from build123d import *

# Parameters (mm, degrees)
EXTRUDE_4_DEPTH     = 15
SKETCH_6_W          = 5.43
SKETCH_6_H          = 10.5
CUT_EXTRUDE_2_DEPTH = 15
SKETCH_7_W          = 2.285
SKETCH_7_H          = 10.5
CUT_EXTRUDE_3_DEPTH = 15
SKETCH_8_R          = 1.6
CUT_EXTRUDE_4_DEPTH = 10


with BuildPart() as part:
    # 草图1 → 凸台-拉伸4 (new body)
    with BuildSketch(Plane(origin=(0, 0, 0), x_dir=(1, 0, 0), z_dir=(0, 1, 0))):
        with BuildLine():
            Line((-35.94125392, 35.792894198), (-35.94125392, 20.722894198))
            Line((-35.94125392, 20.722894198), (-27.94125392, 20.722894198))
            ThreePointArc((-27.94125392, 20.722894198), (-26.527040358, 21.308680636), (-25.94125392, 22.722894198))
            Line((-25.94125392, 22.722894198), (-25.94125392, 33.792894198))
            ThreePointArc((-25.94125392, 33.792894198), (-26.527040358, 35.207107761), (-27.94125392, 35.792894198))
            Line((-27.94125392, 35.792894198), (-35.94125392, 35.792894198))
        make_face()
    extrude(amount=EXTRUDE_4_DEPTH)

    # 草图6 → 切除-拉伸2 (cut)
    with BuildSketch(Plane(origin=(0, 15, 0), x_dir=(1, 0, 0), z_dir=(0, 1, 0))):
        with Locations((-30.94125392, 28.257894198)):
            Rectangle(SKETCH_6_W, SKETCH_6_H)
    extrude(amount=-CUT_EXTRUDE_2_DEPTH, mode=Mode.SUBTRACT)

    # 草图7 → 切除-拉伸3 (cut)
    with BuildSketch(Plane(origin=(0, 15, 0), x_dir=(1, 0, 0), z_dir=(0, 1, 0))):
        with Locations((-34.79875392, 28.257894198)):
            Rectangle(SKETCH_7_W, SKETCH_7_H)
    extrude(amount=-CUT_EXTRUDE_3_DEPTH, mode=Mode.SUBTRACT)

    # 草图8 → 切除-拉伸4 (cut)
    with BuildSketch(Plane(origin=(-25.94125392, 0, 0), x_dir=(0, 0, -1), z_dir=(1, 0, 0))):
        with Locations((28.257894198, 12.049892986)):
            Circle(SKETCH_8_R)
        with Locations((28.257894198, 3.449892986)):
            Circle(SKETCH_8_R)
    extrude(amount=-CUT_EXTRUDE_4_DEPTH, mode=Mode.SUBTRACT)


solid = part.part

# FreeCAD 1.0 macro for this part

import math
import FreeCAD as App
import Part
import Sketcher
Q = App.Units.Quantity

doc = App.newDocument("Part")
body = doc.addObject("PartDesign::Body", "Body")

sketch1 = doc.addObject("Sketcher::SketchObject", "Sketch")
body.addObject(sketch1)
sketch1.AttachmentSupport = (doc.XZ_Plane, [""])
sketch1.MapMode = "FlatFace"
sketch1.addGeometry(Part.LineSegment(App.Vector(-35.9, -35.8, 0), App.Vector(-35.9, -20.7, 0)), False)
sketch1.addGeometry(Part.LineSegment(App.Vector(-35.9, -20.7, 0), App.Vector(-27.9, -20.7, 0)), False)
sketch1.addGeometry(Part.ArcOfCircle(Part.Circle(App.Vector(-27.9, -22.7, 0), App.Vector(0, 0, 1), 2), math.radians(0), math.radians(90)), False)
sketch1.addGeometry(Part.LineSegment(App.Vector(-25.9, -22.7, 0), App.Vector(-25.9, -33.8, 0)), False)
sketch1.addGeometry(Part.ArcOfCircle(Part.Circle(App.Vector(-27.9, -33.8, 0), App.Vector(0, 0, 1), 2), math.radians(-90), math.radians(0)), False)
sketch1.addGeometry(Part.LineSegment(App.Vector(-27.9, -35.8, 0), App.Vector(-35.9, -35.8, 0)), False)
sketch1.addConstraint(Sketcher.Constraint("Coincident", 0, 2, 1, 1))
sketch1.addConstraint(Sketcher.Constraint("Tangent", 1, 2, 2, 2))
sketch1.addConstraint(Sketcher.Constraint("Tangent", 2, 1, 3, 1))
sketch1.addConstraint(Sketcher.Constraint("Tangent", 3, 2, 4, 2))
sketch1.addConstraint(Sketcher.Constraint("Tangent", 4, 1, 5, 1))
sketch1.addConstraint(Sketcher.Constraint("Coincident", 5, 2, 0, 1))
sketch1.addConstraint(Sketcher.Constraint("Vertical", 0))
sketch1.addConstraint(Sketcher.Constraint("Horizontal", 1))
sketch1.addConstraint(Sketcher.Constraint("Vertical", 3))
sketch1.addConstraint(Sketcher.Constraint("Horizontal", 5))
sketch1.addConstraint(Sketcher.Constraint("Equal", 2, 4))
sketch1.addConstraint(Sketcher.Constraint("Radius", 2, Q("2 mm")))
sketch1.addConstraint(Sketcher.Constraint("DistanceX", 1, 1, 1, 2, Q("8 mm")))
sketch1.addConstraint(Sketcher.Constraint("DistanceY", 0, 1, 0, 2, Q("15.07 mm")))
sketch1.addConstraint(Sketcher.Constraint("DistanceX", 2, 3, -1, 1, Q("27.941254 mm")))
sketch1.addConstraint(Sketcher.Constraint("DistanceY", 2, 3, -1, 1, Q("22.722894 mm")))
pad1 = doc.addObject("PartDesign::Pad", "Pad")
body.addObject(pad1)
pad1.Profile = sketch1
pad1.Length = 15
pad1.Reversed = True

sketch2 = doc.addObject("Sketcher::SketchObject", "Sketch001")
body.addObject(sketch2)
sketch2.AttachmentSupport = (doc.XZ_Plane, [""])
sketch2.MapMode = "FlatFace"
sketch2.AttachmentOffset = App.Placement(App.Vector(0, 0, -15), App.Rotation())
sketch2.addGeometry(Part.LineSegment(App.Vector(-34, -34, 0), App.Vector(-34, -23, 0)), False)
sketch2.addGeometry(Part.LineSegment(App.Vector(-34, -23, 0), App.Vector(-28, -23, 0)), False)
sketch2.addGeometry(Part.LineSegment(App.Vector(-28, -23, 0), App.Vector(-28, -34, 0)), False)
sketch2.addGeometry(Part.LineSegment(App.Vector(-28, -34, 0), App.Vector(-34, -34, 0)), False)
sketch2.addConstraint(Sketcher.Constraint("Coincident", 0, 2, 1, 1))
sketch2.addConstraint(Sketcher.Constraint("Coincident", 1, 2, 2, 1))
sketch2.addConstraint(Sketcher.Constraint("Coincident", 2, 2, 3, 1))
sketch2.addConstraint(Sketcher.Constraint("Coincident", 3, 2, 0, 1))
sketch2.addConstraint(Sketcher.Constraint("Vertical", 0))
sketch2.addConstraint(Sketcher.Constraint("Horizontal", 1))
sketch2.addConstraint(Sketcher.Constraint("Vertical", 2))
sketch2.addConstraint(Sketcher.Constraint("Horizontal", 3))
sketch2.addConstraint(Sketcher.Constraint("DistanceY", 0, 1, 0, 2, Q("10.5 mm")))
sketch2.addConstraint(Sketcher.Constraint("DistanceX", 1, 1, 1, 2, Q("5.43 mm")))
sketch2.addConstraint(Sketcher.Constraint("DistanceX", 0, 2, -1, 1, Q("33.656254 mm")))
sketch2.addConstraint(Sketcher.Constraint("DistanceY", 0, 2, -1, 1, Q("23.007894 mm")))
pocket1 = doc.addObject("PartDesign::Pocket", "Pocket")
body.addObject(pocket1)
pocket1.Profile = sketch2
pocket1.Length = 15
pocket1.Reversed = True

sketch3 = doc.addObject("Sketcher::SketchObject", "Sketch002")
body.addObject(sketch3)
sketch3.AttachmentSupport = (doc.XZ_Plane, [""])
sketch3.MapMode = "FlatFace"
sketch3.AttachmentOffset = App.Placement(App.Vector(0, 0, -15), App.Rotation())
sketch3.addGeometry(Part.LineSegment(App.Vector(-35.9, -33.5, 0), App.Vector(-35.9, -23, 0)), False)
sketch3.addGeometry(Part.LineSegment(App.Vector(-35.9, -23, 0), App.Vector(-33.7, -23, 0)), False)
sketch3.addGeometry(Part.LineSegment(App.Vector(-33.7, -23, 0), App.Vector(-33.7, -33.5, 0)), False)
sketch3.addGeometry(Part.LineSegment(App.Vector(-33.7, -33.5, 0), App.Vector(-35.9, -33.5, 0)), False)
sketch3.addConstraint(Sketcher.Constraint("Coincident", 0, 2, 1, 1))
sketch3.addConstraint(Sketcher.Constraint("Coincident", 1, 2, 2, 1))
sketch3.addConstraint(Sketcher.Constraint("Coincident", 2, 2, 3, 1))
sketch3.addConstraint(Sketcher.Constraint("Coincident", 3, 2, 0, 1))
sketch3.addConstraint(Sketcher.Constraint("Vertical", 0))
sketch3.addConstraint(Sketcher.Constraint("Horizontal", 1))
sketch3.addConstraint(Sketcher.Constraint("Vertical", 2))
sketch3.addConstraint(Sketcher.Constraint("Horizontal", 3))
sketch3.addConstraint(Sketcher.Constraint("DistanceY", 0, 1, 0, 2, Q("10.5 mm")))
sketch3.addConstraint(Sketcher.Constraint("DistanceX", 1, 1, 1, 2, Q("2.285 mm")))
sketch3.addConstraint(Sketcher.Constraint("DistanceX", 0, 2, -1, 1, Q("35.941254 mm")))
sketch3.addConstraint(Sketcher.Constraint("DistanceY", 0, 2, -1, 1, Q("23.007894 mm")))
pocket2 = doc.addObject("PartDesign::Pocket", "Pocket001")
body.addObject(pocket2)
pocket2.Profile = sketch3
pocket2.Length = 15
pocket2.Reversed = True

sketch4 = doc.addObject("Sketcher::SketchObject", "Sketch003")
body.addObject(sketch4)
sketch4.AttachmentSupport = (doc.YZ_Plane, [""])
sketch4.MapMode = "FlatFace"
sketch4.AttachmentOffset = App.Placement(App.Vector(0, 0, -25.941254), App.Rotation())
sketch4.addGeometry(Part.Circle(App.Vector(12, -28.3, 0), App.Vector(0, 0, 1), 1.6), False)
sketch4.addGeometry(Part.Circle(App.Vector(3.4, -28.3, 0), App.Vector(0, 0, 1), 1.6), False)
sketch4.addConstraint(Sketcher.Constraint("Equal", 0, 1))
sketch4.addConstraint(Sketcher.Constraint("Horizontal", 0, 3, 1, 3))
sketch4.addConstraint(Sketcher.Constraint("Diameter", 0, Q("3.2 mm")))
sketch4.addConstraint(Sketcher.Constraint("DistanceX", 1, 3, 0, 3, Q("8.6 mm")))
sketch4.addConstraint(Sketcher.Constraint("DistanceX", -1, 1, 0, 3, Q("12.049893 mm")))
sketch4.addConstraint(Sketcher.Constraint("DistanceY", 0, 3, -1, 1, Q("28.257894 mm")))
pocket3 = doc.addObject("PartDesign::Pocket", "Pocket002")
body.addObject(pocket3)
pocket3.Profile = sketch4
pocket3.Length = 10

doc.recompute()
